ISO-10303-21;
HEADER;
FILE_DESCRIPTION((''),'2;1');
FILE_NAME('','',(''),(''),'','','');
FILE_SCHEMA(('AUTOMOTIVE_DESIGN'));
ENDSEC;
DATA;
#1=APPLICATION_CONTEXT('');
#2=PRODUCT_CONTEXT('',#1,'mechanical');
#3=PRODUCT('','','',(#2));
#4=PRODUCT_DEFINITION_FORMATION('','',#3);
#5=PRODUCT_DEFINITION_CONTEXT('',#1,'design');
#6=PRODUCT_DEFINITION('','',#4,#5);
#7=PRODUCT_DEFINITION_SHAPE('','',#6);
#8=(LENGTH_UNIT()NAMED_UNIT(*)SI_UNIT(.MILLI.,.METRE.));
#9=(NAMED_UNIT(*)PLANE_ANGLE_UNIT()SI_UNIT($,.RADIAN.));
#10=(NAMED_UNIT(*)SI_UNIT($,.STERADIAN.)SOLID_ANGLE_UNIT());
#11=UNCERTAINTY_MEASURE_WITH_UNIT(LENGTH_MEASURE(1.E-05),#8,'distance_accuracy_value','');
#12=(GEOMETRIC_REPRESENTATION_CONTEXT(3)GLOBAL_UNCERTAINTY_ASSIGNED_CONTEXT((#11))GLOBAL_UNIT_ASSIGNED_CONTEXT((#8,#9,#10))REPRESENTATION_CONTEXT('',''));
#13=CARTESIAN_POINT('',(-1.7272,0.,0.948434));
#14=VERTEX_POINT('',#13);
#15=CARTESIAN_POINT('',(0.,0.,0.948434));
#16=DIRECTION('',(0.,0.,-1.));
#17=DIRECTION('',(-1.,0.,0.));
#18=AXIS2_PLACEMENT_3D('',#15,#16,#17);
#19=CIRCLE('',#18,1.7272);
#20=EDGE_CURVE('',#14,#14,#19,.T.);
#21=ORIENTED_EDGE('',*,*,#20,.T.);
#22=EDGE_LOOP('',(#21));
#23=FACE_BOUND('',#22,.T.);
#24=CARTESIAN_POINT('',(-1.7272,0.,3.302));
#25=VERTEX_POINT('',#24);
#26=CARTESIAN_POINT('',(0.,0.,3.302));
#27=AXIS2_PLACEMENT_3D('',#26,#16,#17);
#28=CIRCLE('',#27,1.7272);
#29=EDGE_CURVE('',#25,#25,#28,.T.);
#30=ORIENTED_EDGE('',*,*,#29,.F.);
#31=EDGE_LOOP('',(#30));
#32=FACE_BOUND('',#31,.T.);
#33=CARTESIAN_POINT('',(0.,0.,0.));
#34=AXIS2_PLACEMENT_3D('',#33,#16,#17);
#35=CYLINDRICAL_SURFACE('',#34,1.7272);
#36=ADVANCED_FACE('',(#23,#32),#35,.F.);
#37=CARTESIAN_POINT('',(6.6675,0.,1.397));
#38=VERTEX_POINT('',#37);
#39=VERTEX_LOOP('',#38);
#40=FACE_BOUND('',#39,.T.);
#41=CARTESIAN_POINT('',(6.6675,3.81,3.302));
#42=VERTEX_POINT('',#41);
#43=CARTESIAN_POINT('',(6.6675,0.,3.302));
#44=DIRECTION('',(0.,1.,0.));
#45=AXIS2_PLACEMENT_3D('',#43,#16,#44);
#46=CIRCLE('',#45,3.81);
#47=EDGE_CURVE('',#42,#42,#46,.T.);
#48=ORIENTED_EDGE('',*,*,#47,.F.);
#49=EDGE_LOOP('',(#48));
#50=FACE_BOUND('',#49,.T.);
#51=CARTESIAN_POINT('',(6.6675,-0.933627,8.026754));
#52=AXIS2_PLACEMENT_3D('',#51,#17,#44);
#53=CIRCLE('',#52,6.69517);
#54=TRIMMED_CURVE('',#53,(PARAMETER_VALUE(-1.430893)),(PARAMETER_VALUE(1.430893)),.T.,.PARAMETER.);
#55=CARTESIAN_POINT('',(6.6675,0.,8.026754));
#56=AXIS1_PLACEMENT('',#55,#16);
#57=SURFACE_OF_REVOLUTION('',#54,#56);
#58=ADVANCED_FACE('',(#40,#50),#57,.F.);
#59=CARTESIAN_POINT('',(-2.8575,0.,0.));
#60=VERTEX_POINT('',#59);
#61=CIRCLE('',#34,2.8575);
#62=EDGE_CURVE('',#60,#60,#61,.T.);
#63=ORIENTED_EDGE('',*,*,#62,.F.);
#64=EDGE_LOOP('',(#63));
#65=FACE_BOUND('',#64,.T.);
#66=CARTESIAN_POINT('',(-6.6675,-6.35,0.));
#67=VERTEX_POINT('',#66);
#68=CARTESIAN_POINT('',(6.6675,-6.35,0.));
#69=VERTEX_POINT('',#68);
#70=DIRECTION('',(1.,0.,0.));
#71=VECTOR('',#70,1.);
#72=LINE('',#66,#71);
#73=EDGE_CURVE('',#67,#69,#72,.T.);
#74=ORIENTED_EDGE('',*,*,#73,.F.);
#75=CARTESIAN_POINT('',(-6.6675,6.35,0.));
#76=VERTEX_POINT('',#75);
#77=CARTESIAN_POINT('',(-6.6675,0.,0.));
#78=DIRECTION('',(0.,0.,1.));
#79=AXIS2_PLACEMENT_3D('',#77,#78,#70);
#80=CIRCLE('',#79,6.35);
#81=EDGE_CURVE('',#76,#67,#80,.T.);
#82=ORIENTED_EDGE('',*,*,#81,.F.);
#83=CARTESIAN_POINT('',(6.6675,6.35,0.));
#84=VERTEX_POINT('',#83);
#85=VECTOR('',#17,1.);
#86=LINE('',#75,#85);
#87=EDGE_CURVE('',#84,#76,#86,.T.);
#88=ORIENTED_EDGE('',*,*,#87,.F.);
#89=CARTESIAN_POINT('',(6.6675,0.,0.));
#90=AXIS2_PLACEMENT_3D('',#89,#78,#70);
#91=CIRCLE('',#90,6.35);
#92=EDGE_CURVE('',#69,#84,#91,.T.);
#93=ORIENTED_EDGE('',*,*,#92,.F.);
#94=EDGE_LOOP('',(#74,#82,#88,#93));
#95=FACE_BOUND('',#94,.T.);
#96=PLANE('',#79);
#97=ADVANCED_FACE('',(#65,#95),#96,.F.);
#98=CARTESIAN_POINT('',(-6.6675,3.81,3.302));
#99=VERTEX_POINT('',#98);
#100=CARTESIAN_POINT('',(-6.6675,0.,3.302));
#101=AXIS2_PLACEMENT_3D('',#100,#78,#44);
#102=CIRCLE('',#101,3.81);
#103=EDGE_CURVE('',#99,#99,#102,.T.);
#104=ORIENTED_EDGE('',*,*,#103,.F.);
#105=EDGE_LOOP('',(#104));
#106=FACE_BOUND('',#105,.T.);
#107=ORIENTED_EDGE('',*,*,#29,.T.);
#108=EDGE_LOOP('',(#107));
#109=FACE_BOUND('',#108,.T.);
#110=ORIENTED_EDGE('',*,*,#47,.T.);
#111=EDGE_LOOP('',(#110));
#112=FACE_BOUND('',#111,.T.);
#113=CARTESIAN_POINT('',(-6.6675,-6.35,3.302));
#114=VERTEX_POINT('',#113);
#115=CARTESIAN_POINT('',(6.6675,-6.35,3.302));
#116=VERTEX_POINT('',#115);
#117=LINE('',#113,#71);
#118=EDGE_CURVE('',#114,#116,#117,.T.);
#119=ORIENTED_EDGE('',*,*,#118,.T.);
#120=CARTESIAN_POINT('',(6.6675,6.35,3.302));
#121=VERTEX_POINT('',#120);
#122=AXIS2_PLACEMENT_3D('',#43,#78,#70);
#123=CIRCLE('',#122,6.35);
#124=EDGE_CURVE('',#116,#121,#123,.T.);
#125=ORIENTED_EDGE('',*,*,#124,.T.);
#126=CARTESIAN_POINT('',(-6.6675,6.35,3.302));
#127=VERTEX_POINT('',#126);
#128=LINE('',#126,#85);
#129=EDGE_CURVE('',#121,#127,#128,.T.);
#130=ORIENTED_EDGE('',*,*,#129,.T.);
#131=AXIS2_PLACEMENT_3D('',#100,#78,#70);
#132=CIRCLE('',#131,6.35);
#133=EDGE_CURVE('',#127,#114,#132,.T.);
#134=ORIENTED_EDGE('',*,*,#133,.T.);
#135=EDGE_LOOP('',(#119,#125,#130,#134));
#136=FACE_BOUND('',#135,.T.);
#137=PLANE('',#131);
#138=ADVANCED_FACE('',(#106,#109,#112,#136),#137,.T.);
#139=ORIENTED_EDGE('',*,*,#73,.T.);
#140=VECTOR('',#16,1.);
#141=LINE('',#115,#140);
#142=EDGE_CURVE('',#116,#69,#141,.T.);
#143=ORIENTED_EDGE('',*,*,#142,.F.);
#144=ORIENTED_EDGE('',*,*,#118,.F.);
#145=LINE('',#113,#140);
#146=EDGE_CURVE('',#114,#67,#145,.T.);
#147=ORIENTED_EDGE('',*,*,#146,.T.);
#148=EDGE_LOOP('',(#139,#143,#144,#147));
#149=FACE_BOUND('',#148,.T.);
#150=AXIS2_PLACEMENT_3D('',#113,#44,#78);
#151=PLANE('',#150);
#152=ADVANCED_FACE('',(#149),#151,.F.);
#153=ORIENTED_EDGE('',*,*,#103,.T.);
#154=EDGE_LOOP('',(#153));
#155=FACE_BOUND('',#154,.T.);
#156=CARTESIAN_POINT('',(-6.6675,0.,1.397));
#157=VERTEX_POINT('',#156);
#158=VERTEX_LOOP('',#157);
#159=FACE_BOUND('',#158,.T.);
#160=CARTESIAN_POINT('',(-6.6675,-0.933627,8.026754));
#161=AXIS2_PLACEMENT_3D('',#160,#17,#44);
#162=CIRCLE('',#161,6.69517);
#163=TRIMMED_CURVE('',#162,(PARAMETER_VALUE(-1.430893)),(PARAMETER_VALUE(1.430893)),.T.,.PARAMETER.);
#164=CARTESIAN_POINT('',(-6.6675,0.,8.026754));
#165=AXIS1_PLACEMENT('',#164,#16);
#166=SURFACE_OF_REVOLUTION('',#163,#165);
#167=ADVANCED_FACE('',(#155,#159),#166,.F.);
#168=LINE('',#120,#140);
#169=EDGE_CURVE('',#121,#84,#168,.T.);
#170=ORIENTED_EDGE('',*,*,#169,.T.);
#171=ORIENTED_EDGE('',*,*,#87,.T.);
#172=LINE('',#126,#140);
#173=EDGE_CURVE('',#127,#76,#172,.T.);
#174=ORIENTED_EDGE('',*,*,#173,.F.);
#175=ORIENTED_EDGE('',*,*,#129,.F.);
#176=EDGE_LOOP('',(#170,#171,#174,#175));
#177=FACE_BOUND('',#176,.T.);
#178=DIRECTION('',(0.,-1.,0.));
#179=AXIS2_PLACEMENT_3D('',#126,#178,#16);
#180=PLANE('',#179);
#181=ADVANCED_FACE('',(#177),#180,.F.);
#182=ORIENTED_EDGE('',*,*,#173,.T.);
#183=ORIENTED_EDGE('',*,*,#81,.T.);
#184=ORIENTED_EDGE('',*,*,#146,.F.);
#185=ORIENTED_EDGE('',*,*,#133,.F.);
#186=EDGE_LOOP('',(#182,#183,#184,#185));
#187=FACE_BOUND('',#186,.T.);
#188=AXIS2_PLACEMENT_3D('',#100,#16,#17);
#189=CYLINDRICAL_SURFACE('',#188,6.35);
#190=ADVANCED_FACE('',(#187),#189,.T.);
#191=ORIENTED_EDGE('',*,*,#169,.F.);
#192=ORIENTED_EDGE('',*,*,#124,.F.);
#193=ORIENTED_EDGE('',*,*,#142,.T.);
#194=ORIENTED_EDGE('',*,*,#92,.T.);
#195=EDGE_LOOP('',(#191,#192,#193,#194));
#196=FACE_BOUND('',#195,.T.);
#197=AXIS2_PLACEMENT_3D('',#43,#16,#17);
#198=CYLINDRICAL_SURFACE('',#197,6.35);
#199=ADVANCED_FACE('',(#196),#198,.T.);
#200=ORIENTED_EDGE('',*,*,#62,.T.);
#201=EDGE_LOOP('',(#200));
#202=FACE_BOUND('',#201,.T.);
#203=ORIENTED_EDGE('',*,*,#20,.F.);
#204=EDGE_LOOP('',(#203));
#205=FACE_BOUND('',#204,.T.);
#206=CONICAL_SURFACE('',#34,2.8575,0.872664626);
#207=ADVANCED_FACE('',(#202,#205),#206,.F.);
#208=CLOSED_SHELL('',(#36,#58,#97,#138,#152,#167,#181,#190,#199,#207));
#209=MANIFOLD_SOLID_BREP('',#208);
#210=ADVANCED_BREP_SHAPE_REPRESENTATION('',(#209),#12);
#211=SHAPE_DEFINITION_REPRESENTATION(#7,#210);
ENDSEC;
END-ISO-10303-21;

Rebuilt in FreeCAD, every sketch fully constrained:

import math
import FreeCAD as App
import Part
import Sketcher

V = App.Vector
Q = App.Units.Quantity

doc = App.newDocument("Part")
body = doc.addObject("PartDesign::Body", "Body")

# Sketch on XY plane
sketch1 = body.newObject("Sketcher::SketchObject", "Sketch")
sketch1.AttachmentSupport = (doc.getObject("XY_Plane"), [""])
sketch1.MapMode = "FlatFace"
sketch1.addGeometry([
    Part.LineSegment(V(7, 6, 0), V(-7, 6, 0)),
    Part.ArcOfCircle(Part.Circle(V(-7, 0, 0), V(0, 0, 1), 6), math.radians(90), math.radians(270)),
    Part.LineSegment(V(-7, -6, 0), V(7, -6, 0)),
    Part.ArcOfCircle(Part.Circle(V(7, 0, 0), V(0, 0, 1), 6), math.radians(-90), math.radians(90)),
], False)
sketch1.addConstraint([
    Sketcher.Constraint("Tangent", 0, 2, 1, 1),
    Sketcher.Constraint("Tangent", 1, 2, 2, 1),
    Sketcher.Constraint("Tangent", 2, 2, 3, 1),
    Sketcher.Constraint("Tangent", 3, 2, 0, 1),
    Sketcher.Constraint("Horizontal", 0),
    Sketcher.Constraint("Horizontal", 2),
    Sketcher.Constraint("Symmetric", 1, 3, 3, 3, -1, 1),
    Sketcher.Constraint("Radius", 1, Q("0.25 in")),
    Sketcher.Constraint("DistanceX", 0, 2, 0, 1, Q("0.525 in")),
])
pad1 = body.newObject("PartDesign::Pad", "Pad")
pad1.Profile = sketch1
pad1.Length = Q("0.13 in")

# Sketch on YZ plane
sketch2 = body.newObject("Sketcher::SketchObject", "Sketch001")
sketch2.AttachmentSupport = (doc.getObject("YZ_Plane"), [""])
sketch2.MapMode = "FlatFace"
sketch2.AttachmentOffset = App.Placement(V(0, 0, 0.2625 * 25.4), App.Rotation())
sketch2.addGeometry([
    Part.LineSegment(V(3.8, 3.3, 0), V(0, 3.3, 0)),
    Part.LineSegment(V(0, 3.3, 0), V(0, 1.4, 0)),
    Part.ArcOfCircle(Part.Circle(V(-0.9, 8, 0), V(0, 0, 1), 6.7), math.radians(-82), math.radians(-45)),
], False)
sketch2.addConstraint([
    Sketcher.Constraint("Coincident", 0, 2, 1, 1),
    Sketcher.Constraint("Coincident", 1, 2, 2, 1),
    Sketcher.Constraint("Coincident", 2, 2, 0, 1),
    Sketcher.Constraint("Horizontal", 0),
    Sketcher.Constraint("Vertical", 1),
    Sketcher.Constraint("PointOnObject", 0, 2, -2),
    Sketcher.Constraint("DistanceX", 0, 2, 0, 1, Q("0.15 in")),
    Sketcher.Constraint("DistanceY", 1, 2, 1, 1, Q("0.075 in")),
    Sketcher.Constraint("DistanceY", -1, 1, 0, 2, Q("0.13 in")),
    Sketcher.Constraint("Radius", 2, Q("6.69517 mm")),
])
groove = body.newObject("PartDesign::Groove", "Groove")
groove.Profile = sketch2
groove.ReferenceAxis = (sketch2, ["V_Axis"])
groove.Angle = 360
doc.recompute()

mirrored = body.newObject("PartDesign::Mirrored", "Mirrored")
mirrored.Originals = [groove]
mirrored.MirrorPlane = (doc.getObject("YZ_Plane"), [""])
body.Tip = mirrored

# Sketch on XY plane
sketch3 = body.newObject("Sketcher::SketchObject", "Sketch002")
sketch3.AttachmentSupport = (doc.getObject("XY_Plane"), [""])
sketch3.MapMode = "FlatFace"
sketch3.addGeometry(Part.Circle(V(0, 0, 0), V(0, 0, 1), 1.7), False)
sketch3.addConstraint([
    Sketcher.Constraint("Coincident", 0, 3, -1, 1),
    Sketcher.Constraint("Diameter", 0, Q("0.136 in")),
])
doc.recompute()
hole = body.newObject("PartDesign::Hole", "Hole")
hole.Profile = sketch3
hole.ThreadType = "None"
hole.Diameter = Q("0.136 in")
hole.DepthType = "ThroughAll"
hole.HoleCutType = "Countersink"
hole.HoleCutDiameter = Q("0.225 in")
hole.HoleCutCountersinkAngle = 100
hole.Reversed = True

doc.recompute()
